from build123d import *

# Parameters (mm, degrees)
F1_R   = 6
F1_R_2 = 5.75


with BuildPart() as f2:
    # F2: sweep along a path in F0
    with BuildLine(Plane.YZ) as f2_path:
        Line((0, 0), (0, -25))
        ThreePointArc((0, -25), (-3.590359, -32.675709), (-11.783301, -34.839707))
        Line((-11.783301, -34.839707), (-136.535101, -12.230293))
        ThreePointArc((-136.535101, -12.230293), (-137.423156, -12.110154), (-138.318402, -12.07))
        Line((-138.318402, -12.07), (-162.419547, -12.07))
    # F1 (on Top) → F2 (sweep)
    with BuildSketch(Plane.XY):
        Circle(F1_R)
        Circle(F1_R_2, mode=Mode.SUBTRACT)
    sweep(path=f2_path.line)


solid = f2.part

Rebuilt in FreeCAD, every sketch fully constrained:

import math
import FreeCAD as App
import Part
import Sketcher

doc = App.newDocument("Part")
body = doc.addObject("PartDesign::Body", "Body")

sketch1 = body.newObject("Sketcher::SketchObject", "Sketch")
sketch1.AttachmentSupport = (doc.getObject("XY_Plane"), [""])
sketch1.MapMode = "FlatFace"
sketch1.addGeometry([
    Part.Circle(App.Vector(0, 0, 0), App.Vector(0, 0, 1), 6),
    Part.Circle(App.Vector(0, 0, 0), App.Vector(0, 0, 1), 5.75),
], False)
sketch1.addConstraint([
    Sketcher.Constraint("Coincident", 0, 3, -1, 1),
    Sketcher.Constraint("Coincident", 1, 3, -1, 1),
    Sketcher.Constraint("Diameter", 0, 12.0),
    Sketcher.Constraint("Diameter", 1, 11.5),
])

sketch2 = body.newObject("Sketcher::SketchObject", "Sketch001")
sketch2.AttachmentSupport = (doc.getObject("YZ_Plane"), [""])
sketch2.MapMode = "FlatFace"
sketch2.addGeometry([
    Part.LineSegment(App.Vector(0, 0, 0), App.Vector(0, -25, 0)),
    Part.ArcOfCircle(Part.Circle(App.Vector(-9.999999, -25.000001, 0), App.Vector(0, 0, 1), 9.999999), math.radians(-100.272514), math.radians(0.000005)),
    Part.LineSegment(App.Vector(-11.783301, -34.839707, 0), App.Vector(-136.535101, -12.230293, 0)),
    Part.ArcOfCircle(Part.Circle(App.Vector(-138.318403, -22.070005, 0), App.Vector(0, 0, 1), 10.000005), math.radians(79.727489), math.radians(89.999992)),
    Part.LineSegment(App.Vector(-138.318402, -12.07, 0), App.Vector(-162.419547, -12.07, 0)),
], False)
sketch2.addConstraint([
    Sketcher.Constraint("Tangent", 0, 2, 1, 2),
    Sketcher.Constraint("Tangent", 1, 1, 2, 1),
    Sketcher.Constraint("Tangent", 2, 2, 3, 1),
    Sketcher.Constraint("Tangent", 3, 2, 4, 1),
    Sketcher.Constraint("Vertical", 0),
    Sketcher.Constraint("Horizontal", 4),
    Sketcher.Constraint("Coincident", 0, 1, -1, 1),
    Sketcher.Constraint("Radius", 1, 9.999999),
    Sketcher.Constraint("DistanceY", 0, 2, 0, 1, 25.0),
    Sketcher.Constraint("DistanceY", 3, 2, -1, 1, 12.07),
    Sketcher.Constraint("Radius", 3, 10.000005),
    Sketcher.Constraint("DistanceX", 2, 2, -1, 1, 136.535101),
    Sketcher.Constraint("DistanceX", 4, 2, 4, 1, 24.101145),
])
doc.recompute()

additivepipe = body.newObject("PartDesign::AdditivePipe", "AdditivePipe")
additivepipe.Profile = sketch1
additivepipe.Spine = (sketch2, ["Edge1", "Edge2", "Edge3", "Edge4", "Edge5"])

doc.recompute()
